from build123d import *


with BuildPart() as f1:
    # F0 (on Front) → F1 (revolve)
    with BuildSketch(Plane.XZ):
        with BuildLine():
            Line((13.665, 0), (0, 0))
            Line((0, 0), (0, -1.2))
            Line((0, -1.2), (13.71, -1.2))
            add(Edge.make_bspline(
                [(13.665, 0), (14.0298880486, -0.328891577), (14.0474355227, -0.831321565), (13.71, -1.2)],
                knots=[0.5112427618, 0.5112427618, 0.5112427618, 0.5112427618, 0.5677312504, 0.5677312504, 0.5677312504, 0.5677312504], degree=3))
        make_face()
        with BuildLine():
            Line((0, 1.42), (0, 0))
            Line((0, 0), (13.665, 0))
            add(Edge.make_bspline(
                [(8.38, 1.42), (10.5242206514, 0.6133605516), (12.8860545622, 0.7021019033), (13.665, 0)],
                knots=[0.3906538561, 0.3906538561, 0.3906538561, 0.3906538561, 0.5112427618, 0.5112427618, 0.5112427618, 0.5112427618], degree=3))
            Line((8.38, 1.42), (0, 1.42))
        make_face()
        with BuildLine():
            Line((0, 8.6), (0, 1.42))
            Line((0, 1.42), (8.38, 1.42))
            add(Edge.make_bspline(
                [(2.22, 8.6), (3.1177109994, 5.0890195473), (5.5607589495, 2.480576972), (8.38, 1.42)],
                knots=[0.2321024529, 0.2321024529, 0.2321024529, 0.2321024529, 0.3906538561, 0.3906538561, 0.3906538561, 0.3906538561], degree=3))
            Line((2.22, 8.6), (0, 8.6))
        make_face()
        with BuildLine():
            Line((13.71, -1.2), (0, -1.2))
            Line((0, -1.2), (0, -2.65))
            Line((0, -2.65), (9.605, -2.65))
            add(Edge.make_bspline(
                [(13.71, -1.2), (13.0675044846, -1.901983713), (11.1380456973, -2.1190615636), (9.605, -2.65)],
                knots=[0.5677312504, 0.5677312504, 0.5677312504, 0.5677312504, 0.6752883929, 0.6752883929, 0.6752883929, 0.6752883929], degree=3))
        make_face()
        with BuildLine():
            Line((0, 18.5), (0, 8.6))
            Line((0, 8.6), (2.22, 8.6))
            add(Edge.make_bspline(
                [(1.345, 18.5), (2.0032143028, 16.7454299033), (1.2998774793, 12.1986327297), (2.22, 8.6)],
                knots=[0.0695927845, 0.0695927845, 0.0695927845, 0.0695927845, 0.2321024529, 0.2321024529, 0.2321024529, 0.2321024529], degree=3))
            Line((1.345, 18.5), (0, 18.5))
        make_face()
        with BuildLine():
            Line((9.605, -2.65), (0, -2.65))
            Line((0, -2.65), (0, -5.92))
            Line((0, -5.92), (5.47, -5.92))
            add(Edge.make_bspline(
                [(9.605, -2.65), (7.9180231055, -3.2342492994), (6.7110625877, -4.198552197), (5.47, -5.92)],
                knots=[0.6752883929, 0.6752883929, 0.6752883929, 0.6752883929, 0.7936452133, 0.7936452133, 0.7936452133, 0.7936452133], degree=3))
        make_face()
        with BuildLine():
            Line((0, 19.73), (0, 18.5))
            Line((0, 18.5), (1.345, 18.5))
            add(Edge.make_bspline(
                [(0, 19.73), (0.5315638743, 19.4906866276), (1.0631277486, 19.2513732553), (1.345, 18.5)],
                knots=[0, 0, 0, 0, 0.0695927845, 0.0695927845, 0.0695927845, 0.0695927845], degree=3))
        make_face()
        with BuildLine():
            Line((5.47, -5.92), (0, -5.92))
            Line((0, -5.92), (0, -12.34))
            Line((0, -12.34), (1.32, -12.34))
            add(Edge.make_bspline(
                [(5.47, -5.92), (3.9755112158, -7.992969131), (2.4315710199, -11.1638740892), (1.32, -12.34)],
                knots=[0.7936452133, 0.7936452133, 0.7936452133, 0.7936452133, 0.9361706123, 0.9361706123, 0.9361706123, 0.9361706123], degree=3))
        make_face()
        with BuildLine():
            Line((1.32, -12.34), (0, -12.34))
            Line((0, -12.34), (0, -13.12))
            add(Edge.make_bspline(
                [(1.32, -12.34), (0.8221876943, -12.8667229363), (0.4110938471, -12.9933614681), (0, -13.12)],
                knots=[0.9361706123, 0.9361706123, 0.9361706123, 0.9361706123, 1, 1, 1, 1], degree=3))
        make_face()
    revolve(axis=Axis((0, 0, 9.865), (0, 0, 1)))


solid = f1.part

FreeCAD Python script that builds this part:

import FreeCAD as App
import Part
import Sketcher
from FreeCAD import Vector

doc = App.newDocument("Part")
body = doc.addObject("PartDesign::Body", "Body")

sketch1 = doc.addObject("Sketcher::SketchObject", "Sketch")
body.addObject(sketch1)
sketch1.AttachmentSupport = (doc.XZ_Plane, [""])
sketch1.MapMode = "FlatFace"
sketch1.addGeometry(Part.BSplineCurve([Vector(13.665, 0, 0), Vector(14.029888, -0.328892, 0), Vector(14.047436, -0.831322, 0), Vector(13.71, -1.2, 0)], [4, 4], [0.511242762, 0.56773125], False, 3, [1, 1, 1, 1], False), False)
sketch1.addGeometry(Part.BSplineCurve([Vector(8.38, 1.42, 0), Vector(10.524221, 0.613361, 0), Vector(12.886055, 0.702102, 0), Vector(13.665, 0, 0)], [4, 4], [0.390653856, 0.511242762], False, 3, [1, 1, 1, 1], False), False)
sketch1.addGeometry(Part.BSplineCurve([Vector(2.22, 8.6, 0), Vector(3.117711, 5.08902, 0), Vector(5.560759, 2.480577, 0), Vector(8.38, 1.42, 0)], [4, 4], [0.232102453, 0.390653856], False, 3, [1, 1, 1, 1], False), False)
sketch1.addGeometry(Part.BSplineCurve([Vector(1.345, 18.5, 0), Vector(2.003214, 16.74543, 0), Vector(1.299877, 12.198633, 0), Vector(2.22, 8.6, 0)], [4, 4], [0.069592785, 0.232102453], False, 3, [1, 1, 1, 1], False), False)
sketch1.addGeometry(Part.BSplineCurve([Vector(0, 19.73, 0), Vector(0.531564, 19.490687, 0), Vector(1.063128, 19.251373, 0), Vector(1.345, 18.5, 0)], [4, 4], [0, 0.069592785], False, 3, [1, 1, 1, 1], False), False)
sketch1.addGeometry(Part.LineSegment(Vector(0, 19.73, 0), Vector(0, -13.12, 0)), False)
sketch1.addGeometry(Part.BSplineCurve([Vector(1.32, -12.34, 0), Vector(0.822188, -12.866723, 0), Vector(0.411094, -12.993361, 0), Vector(0, -13.12, 0)], [4, 4], [0.936170612, 1], False, 3, [1, 1, 1, 1], False), False)
sketch1.addGeometry(Part.BSplineCurve([Vector(5.47, -5.92, 0), Vector(3.975511, -7.992969, 0), Vector(2.431571, -11.163874, 0), Vector(1.32, -12.34, 0)], [4, 4], [0.793645213, 0.936170612], False, 3, [1, 1, 1, 1], False), False)
sketch1.addGeometry(Part.BSplineCurve([Vector(9.605, -2.65, 0), Vector(7.918023, -3.234249, 0), Vector(6.711063, -4.198552, 0), Vector(5.47, -5.92, 0)], [4, 4], [0.675288393, 0.793645213], False, 3, [1, 1, 1, 1], False), False)
sketch1.addGeometry(Part.BSplineCurve([Vector(13.71, -1.2, 0), Vector(13.067504, -1.901984, 0), Vector(11.138046, -2.119062, 0), Vector(9.605, -2.65, 0)], [4, 4], [0.56773125, 0.675288393], False, 3, [1, 1, 1, 1], False), False)
sketch1.addConstraint(Sketcher.Constraint("Block", 0))
sketch1.addConstraint(Sketcher.Constraint("Block", 1))
sketch1.addConstraint(Sketcher.Constraint("Block", 2))
sketch1.addConstraint(Sketcher.Constraint("Block", 3))
sketch1.addConstraint(Sketcher.Constraint("Block", 4))
sketch1.addConstraint(Sketcher.Constraint("Block", 6))
sketch1.addConstraint(Sketcher.Constraint("Block", 7))
sketch1.addConstraint(Sketcher.Constraint("Block", 8))
sketch1.addConstraint(Sketcher.Constraint("Block", 9))
sketch1.addConstraint(Sketcher.Constraint("Coincident", 4, 1, 5, 1))
sketch1.addConstraint(Sketcher.Constraint("Coincident", 5, 2, 6, 2))
revolution = doc.addObject("PartDesign::Revolution", "Revolution")
body.addObject(revolution)
revolution.Profile = sketch1
revolution.ReferenceAxis = (sketch1, ["V_Axis"])
revolution.Angle = 360

doc.recompute()
